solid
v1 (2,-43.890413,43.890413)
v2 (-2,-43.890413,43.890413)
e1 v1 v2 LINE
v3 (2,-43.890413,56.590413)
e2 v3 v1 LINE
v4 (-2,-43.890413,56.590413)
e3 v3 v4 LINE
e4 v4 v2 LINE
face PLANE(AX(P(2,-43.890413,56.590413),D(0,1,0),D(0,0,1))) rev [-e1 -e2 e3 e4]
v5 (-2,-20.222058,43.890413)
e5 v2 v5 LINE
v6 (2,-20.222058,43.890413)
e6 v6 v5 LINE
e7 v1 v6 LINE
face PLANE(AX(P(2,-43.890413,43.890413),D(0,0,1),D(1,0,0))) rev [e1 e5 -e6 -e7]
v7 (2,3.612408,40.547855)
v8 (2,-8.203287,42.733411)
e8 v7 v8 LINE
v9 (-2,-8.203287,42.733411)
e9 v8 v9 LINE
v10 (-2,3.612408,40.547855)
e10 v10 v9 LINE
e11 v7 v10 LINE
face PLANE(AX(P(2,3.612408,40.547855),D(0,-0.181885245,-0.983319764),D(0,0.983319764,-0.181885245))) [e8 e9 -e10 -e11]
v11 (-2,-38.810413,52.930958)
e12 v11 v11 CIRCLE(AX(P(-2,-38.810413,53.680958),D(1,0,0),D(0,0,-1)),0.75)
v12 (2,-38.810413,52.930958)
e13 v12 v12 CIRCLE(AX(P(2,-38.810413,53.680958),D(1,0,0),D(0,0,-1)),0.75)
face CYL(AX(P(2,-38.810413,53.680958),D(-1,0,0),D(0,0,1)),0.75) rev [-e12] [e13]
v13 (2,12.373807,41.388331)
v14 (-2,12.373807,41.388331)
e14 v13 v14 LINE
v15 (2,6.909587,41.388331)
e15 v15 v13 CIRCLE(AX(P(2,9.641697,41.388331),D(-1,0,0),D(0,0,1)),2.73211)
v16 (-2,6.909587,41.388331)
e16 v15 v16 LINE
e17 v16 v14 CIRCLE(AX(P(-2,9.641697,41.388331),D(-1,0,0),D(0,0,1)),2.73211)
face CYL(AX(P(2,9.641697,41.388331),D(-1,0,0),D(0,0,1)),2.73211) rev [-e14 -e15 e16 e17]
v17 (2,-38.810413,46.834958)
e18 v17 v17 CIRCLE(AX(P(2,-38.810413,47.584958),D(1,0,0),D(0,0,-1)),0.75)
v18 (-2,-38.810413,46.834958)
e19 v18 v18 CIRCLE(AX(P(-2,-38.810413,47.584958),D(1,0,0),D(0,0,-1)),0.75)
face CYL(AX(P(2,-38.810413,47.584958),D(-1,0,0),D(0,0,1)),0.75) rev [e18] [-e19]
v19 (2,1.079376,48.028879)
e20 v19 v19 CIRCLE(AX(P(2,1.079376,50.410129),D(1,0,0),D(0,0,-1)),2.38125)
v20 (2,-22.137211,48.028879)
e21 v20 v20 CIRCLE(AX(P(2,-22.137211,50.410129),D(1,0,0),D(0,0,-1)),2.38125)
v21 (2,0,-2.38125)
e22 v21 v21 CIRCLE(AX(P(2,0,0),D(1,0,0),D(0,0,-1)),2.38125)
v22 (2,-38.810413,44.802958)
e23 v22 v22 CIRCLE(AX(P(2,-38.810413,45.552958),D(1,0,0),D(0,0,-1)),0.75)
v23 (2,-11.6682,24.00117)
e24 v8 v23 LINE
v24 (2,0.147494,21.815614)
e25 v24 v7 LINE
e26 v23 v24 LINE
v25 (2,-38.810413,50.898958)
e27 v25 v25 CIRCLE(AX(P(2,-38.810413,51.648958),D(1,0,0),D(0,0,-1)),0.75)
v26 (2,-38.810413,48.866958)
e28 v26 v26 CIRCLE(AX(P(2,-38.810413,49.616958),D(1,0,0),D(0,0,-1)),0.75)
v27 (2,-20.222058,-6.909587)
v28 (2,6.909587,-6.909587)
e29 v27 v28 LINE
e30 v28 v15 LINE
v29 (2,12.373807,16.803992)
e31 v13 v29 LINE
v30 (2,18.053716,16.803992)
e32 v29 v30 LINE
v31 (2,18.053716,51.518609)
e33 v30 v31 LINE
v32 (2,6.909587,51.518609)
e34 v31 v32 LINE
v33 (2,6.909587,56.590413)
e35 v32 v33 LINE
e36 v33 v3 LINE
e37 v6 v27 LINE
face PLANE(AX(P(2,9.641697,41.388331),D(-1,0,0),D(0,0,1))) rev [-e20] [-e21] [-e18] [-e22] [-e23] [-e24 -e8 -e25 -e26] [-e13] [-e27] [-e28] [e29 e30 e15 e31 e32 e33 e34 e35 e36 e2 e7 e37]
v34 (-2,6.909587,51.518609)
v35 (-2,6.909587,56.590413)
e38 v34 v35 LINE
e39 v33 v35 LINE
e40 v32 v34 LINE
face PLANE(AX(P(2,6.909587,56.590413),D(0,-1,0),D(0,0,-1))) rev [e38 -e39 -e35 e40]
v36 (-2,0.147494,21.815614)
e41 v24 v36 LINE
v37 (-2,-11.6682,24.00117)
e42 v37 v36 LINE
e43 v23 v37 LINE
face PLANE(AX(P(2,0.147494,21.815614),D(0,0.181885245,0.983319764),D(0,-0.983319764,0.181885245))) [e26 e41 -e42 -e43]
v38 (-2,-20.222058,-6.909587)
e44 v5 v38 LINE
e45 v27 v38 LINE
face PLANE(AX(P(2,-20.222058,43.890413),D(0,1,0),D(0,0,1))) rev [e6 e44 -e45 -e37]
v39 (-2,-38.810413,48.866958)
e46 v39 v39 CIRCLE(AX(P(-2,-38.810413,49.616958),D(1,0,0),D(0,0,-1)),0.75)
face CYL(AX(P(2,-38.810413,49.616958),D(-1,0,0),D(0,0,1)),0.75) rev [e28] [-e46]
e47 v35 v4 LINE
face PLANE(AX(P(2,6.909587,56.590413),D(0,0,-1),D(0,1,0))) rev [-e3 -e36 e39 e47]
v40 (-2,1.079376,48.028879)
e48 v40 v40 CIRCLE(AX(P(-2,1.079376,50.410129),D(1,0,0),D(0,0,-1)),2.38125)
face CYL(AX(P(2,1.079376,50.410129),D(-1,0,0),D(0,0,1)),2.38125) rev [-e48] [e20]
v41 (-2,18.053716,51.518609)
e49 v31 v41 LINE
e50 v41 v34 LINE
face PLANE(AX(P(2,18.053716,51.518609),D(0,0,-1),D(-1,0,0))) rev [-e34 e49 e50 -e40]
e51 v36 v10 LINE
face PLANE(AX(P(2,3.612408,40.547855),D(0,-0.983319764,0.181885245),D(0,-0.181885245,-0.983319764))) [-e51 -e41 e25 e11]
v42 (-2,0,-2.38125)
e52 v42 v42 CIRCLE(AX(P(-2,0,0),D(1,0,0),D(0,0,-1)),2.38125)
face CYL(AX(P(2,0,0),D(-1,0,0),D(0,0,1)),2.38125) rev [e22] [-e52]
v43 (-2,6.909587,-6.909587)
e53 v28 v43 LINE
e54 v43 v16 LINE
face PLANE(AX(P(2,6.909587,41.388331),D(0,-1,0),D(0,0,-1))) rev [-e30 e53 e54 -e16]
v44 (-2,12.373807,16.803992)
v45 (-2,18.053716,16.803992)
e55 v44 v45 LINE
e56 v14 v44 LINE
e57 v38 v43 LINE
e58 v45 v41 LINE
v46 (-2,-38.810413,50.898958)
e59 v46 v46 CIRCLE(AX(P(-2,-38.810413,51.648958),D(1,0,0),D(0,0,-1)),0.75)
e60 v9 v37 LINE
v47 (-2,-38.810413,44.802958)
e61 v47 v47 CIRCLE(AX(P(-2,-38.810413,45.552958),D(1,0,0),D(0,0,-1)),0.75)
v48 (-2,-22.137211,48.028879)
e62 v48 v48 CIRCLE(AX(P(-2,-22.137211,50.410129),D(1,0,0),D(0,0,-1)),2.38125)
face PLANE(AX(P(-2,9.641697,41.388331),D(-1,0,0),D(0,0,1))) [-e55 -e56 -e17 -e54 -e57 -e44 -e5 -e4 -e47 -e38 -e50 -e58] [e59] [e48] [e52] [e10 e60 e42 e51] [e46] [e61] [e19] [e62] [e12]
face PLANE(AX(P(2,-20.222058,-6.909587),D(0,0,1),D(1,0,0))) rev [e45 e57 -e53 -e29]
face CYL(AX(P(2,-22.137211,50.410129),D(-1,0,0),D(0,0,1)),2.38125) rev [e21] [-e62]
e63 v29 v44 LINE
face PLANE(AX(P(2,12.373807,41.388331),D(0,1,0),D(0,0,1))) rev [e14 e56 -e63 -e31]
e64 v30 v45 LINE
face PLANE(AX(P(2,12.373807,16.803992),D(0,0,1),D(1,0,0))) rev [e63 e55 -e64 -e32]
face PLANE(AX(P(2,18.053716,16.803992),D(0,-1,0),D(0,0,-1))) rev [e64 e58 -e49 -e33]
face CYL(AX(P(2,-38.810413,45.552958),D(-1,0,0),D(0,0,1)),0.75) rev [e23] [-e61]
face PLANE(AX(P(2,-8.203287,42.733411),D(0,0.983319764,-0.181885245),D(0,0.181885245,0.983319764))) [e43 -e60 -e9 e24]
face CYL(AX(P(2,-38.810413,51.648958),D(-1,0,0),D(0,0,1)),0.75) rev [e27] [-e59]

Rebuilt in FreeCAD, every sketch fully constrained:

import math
import FreeCAD as App
import Part
import Sketcher
from FreeCAD import Vector
Q = App.Units.Quantity


def add_polygon(sketch, points):
    """Adds a closed chain of lines whose ends are joined by coincident constraints."""
    first, n = sketch.GeometryCount, len(points)
    for a, b in zip(points, points[1:] + points[:1]):
        sketch.addGeometry(Part.LineSegment(App.Vector(*a, 0), App.Vector(*b, 0)), False)
    for i in range(n):
        sketch.addConstraint(Sketcher.Constraint("Coincident", first + i, 2, first + (i + 1) % n, 1))

doc = App.newDocument("Part")
body = doc.addObject("PartDesign::Body", "Body")

# Sketch on YZ plane
sketch1 = body.newObject("Sketcher::SketchObject", "Sketch")
sketch1.AttachmentSupport = (doc.getObject("YZ_Plane"), [""])
sketch1.MapMode = "FlatFace"
sketch1.addGeometry(Part.LineSegment(Vector(6.9, 51.5, 0), Vector(6.9, 56.6, 0)), False)  # 0
sketch1.addGeometry(Part.LineSegment(Vector(6.9, 56.6, 0), Vector(-43.9, 56.6, 0)), False)  # 1
sketch1.addGeometry(Part.LineSegment(Vector(-43.9, 56.6, 0), Vector(-43.9, 43.9, 0)), False)  # 2
sketch1.addGeometry(Part.LineSegment(Vector(-43.9, 43.9, 0), Vector(-20.2, 43.9, 0)), False)  # 3
sketch1.addGeometry(Part.LineSegment(Vector(-20.2, 43.9, 0), Vector(-20.2, -6.9, 0)), False)  # 4
sketch1.addGeometry(Part.LineSegment(Vector(-20.2, -6.9, 0), Vector(6.9, -6.9, 0)), False)  # 5
sketch1.addGeometry(Part.LineSegment(Vector(6.9, -6.9, 0), Vector(6.9, 41.4, 0)), False)  # 6
sketch1.addGeometry(Part.ArcOfCircle(Part.Circle(Vector(9.6, 41.4, 0), Vector(0, 0, 1), 2.7), math.radians(0), math.radians(180)), False)  # 7
sketch1.addGeometry(Part.LineSegment(Vector(12.4, 41.4, 0), Vector(12.4, 16.8, 0)), False)  # 8
sketch1.addGeometry(Part.LineSegment(Vector(12.4, 16.8, 0), Vector(18.1, 16.8, 0)), False)  # 9
sketch1.addGeometry(Part.LineSegment(Vector(18.1, 16.8, 0), Vector(18.1, 51.5, 0)), False)  # 10
sketch1.addGeometry(Part.LineSegment(Vector(18.1, 51.5, 0), Vector(6.9, 51.5, 0)), False)  # 11
sketch1.addGeometry(Part.Circle(Vector(-38.8, 45.6, 0), Vector(0, 0, 1), 0.8), False)  # 12
sketch1.addGeometry(Part.Circle(Vector(-38.8, 47.6, 0), Vector(0, 0, 1), 0.8), False)  # 13
sketch1.addGeometry(Part.Circle(Vector(-38.8, 49.6, 0), Vector(0, 0, 1), 0.8), False)  # 14
sketch1.addGeometry(Part.Circle(Vector(-38.8, 51.6, 0), Vector(0, 0, 1), 0.8), False)  # 15
sketch1.addGeometry(Part.Circle(Vector(-38.8, 53.7, 0), Vector(0, 0, 1), 0.8), False)  # 16
sketch1.addGeometry(Part.Circle(Vector(-22.1, 50.4, 0), Vector(0, 0, 1), 2.4), False)  # 17
sketch1.addGeometry(Part.Circle(Vector(0, 0, 0), Vector(0, 0, 1), 2.4), False)  # 18
add_polygon(sketch1, [(3.6, 40.5), (0.1, 21.8), (-11.7, 24), (-8.2, 42.7)])  # lines 19-22
sketch1.addGeometry(Part.Circle(Vector(1.1, 50.4, 0), Vector(0, 0, 1), 2.4), False)  # 23
sketch1.addConstraint([
    Sketcher.Constraint("Coincident", 0, 2, 1, 1),
    Sketcher.Constraint("Coincident", 1, 2, 2, 1),
    Sketcher.Constraint("Coincident", 2, 2, 3, 1),
    Sketcher.Constraint("Coincident", 3, 2, 4, 1),
    Sketcher.Constraint("Coincident", 4, 2, 5, 1),
    Sketcher.Constraint("Coincident", 5, 2, 6, 1),
    Sketcher.Constraint("Tangent", 6, 2, 7, 2),
    Sketcher.Constraint("Tangent", 7, 1, 8, 1),
    Sketcher.Constraint("Coincident", 8, 2, 9, 1),
    Sketcher.Constraint("Coincident", 9, 2, 10, 1),
    Sketcher.Constraint("Coincident", 10, 2, 11, 1),
    Sketcher.Constraint("Coincident", 11, 2, 0, 1),
    Sketcher.Constraint("Vertical", 0),
    Sketcher.Constraint("Horizontal", 1),
    Sketcher.Constraint("Vertical", 2),
    Sketcher.Constraint("Horizontal", 3),
    Sketcher.Constraint("Vertical", 4),
    Sketcher.Constraint("Horizontal", 5),
    Sketcher.Constraint("Vertical", 6),
    Sketcher.Constraint("Vertical", 8),
    Sketcher.Constraint("Horizontal", 9),
    Sketcher.Constraint("Vertical", 10),
    Sketcher.Constraint("Horizontal", 11),
    Sketcher.Constraint("Coincident", 18, 3, -1, 1),
    Sketcher.Constraint("Equal", 12, 13),
    Sketcher.Constraint("Equal", 13, 14),
    Sketcher.Constraint("Equal", 14, 15),
    Sketcher.Constraint("Equal", 15, 16),
    Sketcher.Constraint("Equal", 17, 18),
    Sketcher.Constraint("Equal", 18, 23),
    Sketcher.Constraint("Perpendicular", 19, 20),
    Sketcher.Constraint("Perpendicular", 20, 21),
    Sketcher.Constraint("Perpendicular", 21, 22),
    Sketcher.Constraint("Horizontal", 17, 3, 23, 3),
    Sketcher.Constraint("Vertical", 12, 3, 13, 3),
    Sketcher.Constraint("Vertical", 13, 3, 14, 3),
    Sketcher.Constraint("Vertical", 14, 3, 15, 3),
    Sketcher.Constraint("Vertical", 15, 3, 16, 3),
    Sketcher.Constraint("Vertical", 0, 2, 5, 2),
    Sketcher.Constraint("Equal", 1, 4),
    Sketcher.Constraint("DistanceX", 1, 2, 1, 1, Q("2 in")),
    Sketcher.Constraint("Diameter", 17, Q("0.1875 in")),
    Sketcher.Constraint("DistanceY", 2, 2, 2, 1, Q("0.5 in")),
    Sketcher.Constraint("DistanceX", 16, 3, 0, 2, Q("1.8 in")),
    Sketcher.Constraint("Distance", 19, Q("0.75 in")),
    Sketcher.Constraint("Diameter", 12, Q("1.5 mm")),
    Sketcher.Constraint("DistanceY", 12, 3, 13, 3, Q("0.08 in")),
    Sketcher.Constraint("DistanceY", 13, 3, 14, 3, Q("0.08 in")),
    Sketcher.Constraint("DistanceY", 14, 3, 15, 3, Q("0.08 in")),
    Sketcher.Constraint("DistanceY", 15, 3, 16, 3, Q("0.08 in")),
    Sketcher.Constraint("Radius", 7, Q("2.73211 mm")),
    Sketcher.Constraint("DistanceX", 9, 1, 9, 2, Q("5.679909 mm")),
    Sketcher.Constraint("DistanceY", 6, 1, 6, 2, Q("48.297918 mm")),
    Sketcher.Constraint("DistanceY", 8, 2, 8, 1, Q("24.584339 mm")),
    Sketcher.Constraint("DistanceX", 20, 2, -1, 1, Q("11.6682 mm")),
    Sketcher.Constraint("DistanceX", 14, 3, 17, 3, Q("16.673201 mm")),
    Sketcher.Constraint("DistanceY", 7, 3, 23, 3, Q("9.021798 mm")),
    Sketcher.Constraint("DistanceY", 21, 2, 3, 2, Q("1.157002 mm")),
    Sketcher.Constraint("DistanceX", 22, 2, 7, 1, Q("8.761398 mm")),
    Sketcher.Constraint("DistanceX", 3, 1, 3, 2, Q("23.668355 mm")),
    Sketcher.Constraint("DistanceY", 0, 1, 0, 2, Q("5.071804 mm")),
    Sketcher.Constraint("DistanceY", -1, 1, 7, 3, Q("41.388331 mm")),
    Sketcher.Constraint("DistanceY", -1, 1, 12, 3, Q("45.552958 mm")),
    Sketcher.Constraint("DistanceX", 17, 3, -1, 1, Q("22.137211 mm")),
    Sketcher.Constraint("DistanceY", -1, 1, 20, 2, Q("24.00117 mm")),
    Sketcher.Constraint("DistanceX", 23, 3, 7, 3, Q("8.562321 mm")),
])
pad1 = body.newObject("PartDesign::Pad", "Pad")
pad1.Profile = sketch1
pad1.Length = 4
pad1.Midplane = True

doc.recompute()
